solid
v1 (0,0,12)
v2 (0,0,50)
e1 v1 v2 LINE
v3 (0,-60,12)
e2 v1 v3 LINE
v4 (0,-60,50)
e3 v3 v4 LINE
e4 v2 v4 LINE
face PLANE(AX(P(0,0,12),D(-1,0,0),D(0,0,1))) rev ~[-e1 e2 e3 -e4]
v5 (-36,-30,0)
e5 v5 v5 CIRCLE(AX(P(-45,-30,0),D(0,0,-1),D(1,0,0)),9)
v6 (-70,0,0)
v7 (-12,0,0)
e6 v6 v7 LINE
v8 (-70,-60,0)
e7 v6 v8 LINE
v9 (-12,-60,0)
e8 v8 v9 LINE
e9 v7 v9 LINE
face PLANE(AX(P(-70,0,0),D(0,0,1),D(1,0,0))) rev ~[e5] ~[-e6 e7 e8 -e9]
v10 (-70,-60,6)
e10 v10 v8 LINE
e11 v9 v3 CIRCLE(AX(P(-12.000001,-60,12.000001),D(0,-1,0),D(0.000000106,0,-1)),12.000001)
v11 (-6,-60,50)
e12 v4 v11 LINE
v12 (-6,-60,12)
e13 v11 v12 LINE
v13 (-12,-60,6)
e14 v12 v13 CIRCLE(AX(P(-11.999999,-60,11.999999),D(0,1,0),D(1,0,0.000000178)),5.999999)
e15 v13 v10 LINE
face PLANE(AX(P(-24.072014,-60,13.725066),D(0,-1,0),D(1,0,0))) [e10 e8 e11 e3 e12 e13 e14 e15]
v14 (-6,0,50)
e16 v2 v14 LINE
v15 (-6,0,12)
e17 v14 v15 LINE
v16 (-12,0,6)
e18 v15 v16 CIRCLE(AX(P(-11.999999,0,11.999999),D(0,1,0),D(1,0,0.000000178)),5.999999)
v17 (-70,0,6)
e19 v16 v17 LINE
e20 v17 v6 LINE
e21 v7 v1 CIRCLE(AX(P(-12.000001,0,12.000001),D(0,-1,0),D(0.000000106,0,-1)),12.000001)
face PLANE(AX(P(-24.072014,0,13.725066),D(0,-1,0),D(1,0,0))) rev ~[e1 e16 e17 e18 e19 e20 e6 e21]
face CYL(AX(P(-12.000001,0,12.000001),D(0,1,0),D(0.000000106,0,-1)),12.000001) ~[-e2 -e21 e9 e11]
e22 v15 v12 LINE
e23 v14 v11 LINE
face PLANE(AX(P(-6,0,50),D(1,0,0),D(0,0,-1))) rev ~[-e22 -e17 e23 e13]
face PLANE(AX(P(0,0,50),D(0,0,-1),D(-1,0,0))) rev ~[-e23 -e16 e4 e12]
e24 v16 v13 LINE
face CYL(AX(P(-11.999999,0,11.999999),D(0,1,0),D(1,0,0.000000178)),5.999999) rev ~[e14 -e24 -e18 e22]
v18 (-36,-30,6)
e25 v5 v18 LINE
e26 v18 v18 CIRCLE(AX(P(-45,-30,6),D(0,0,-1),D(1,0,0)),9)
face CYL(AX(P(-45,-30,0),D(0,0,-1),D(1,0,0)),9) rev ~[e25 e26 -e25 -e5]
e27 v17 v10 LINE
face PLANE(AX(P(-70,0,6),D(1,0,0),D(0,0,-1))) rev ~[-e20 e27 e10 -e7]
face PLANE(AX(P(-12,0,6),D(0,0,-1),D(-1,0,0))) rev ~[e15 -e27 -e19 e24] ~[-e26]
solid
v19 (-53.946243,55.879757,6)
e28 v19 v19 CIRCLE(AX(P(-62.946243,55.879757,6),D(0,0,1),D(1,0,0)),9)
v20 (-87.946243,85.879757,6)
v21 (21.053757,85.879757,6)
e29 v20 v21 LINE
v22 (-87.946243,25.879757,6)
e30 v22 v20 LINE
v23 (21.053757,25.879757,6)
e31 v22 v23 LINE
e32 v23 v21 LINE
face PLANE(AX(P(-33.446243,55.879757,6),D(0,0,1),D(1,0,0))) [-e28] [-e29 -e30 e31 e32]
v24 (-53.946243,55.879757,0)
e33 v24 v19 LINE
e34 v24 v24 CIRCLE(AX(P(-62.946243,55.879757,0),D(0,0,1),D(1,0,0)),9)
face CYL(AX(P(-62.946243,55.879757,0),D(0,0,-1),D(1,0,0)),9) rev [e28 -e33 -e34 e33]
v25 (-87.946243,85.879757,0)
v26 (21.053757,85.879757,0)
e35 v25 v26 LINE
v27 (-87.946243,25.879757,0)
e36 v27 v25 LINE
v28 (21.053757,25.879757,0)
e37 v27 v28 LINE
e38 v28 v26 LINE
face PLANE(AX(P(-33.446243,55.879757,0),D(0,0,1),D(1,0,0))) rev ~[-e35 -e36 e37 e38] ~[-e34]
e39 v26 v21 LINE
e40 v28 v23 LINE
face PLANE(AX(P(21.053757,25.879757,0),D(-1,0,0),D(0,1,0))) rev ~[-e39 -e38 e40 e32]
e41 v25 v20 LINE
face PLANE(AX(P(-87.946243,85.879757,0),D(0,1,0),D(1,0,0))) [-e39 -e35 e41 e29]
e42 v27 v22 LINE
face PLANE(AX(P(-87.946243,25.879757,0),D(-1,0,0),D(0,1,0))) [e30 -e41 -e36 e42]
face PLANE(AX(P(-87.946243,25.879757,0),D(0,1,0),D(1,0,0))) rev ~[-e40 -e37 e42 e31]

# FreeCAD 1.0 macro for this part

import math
import FreeCAD as App
import Part
import Sketcher
from FreeCAD import Vector

doc = App.newDocument("Part")
params = doc.addObject("Spreadsheet::Sheet", "Params")
for row, (alias, value) in enumerate([
    ("sketch1_radius", "12.000001 mm"),
    ("sketch1_radius2", "5.999999 mm"),
    ("sketch1_width", "58 mm"),
    ("sketch1_height", "38 mm"),
    ("pad1_length", "60 mm"),
    ("sketch2_diameter", "18 mm"),
    ("pocket1_length", "25 mm"),
    ("sketch3_diameter", "18 mm"),
    ("sketch3_width", "109 mm"),
    ("sketch3_height", "60 mm"),
    ("pad2_length", "6 mm"),
], start=1):
    params.set(f"A{row}", alias)
    params.set(f"B{row}", "=" + value)
    params.setAlias(f"B{row}", alias)

body = doc.addObject("PartDesign::Body", "Body")

# Sketch on XZ plane
sketch1 = body.newObject("Sketcher::SketchObject", "Sketch")
sketch1.AttachmentSupport = (doc.getObject("XZ_Plane"), [""])
sketch1.MapMode = "FlatFace"
sketch1.addGeometry(Part.LineSegment(Vector(-70, 6, 0), Vector(-70, 0, 0)), False)
sketch1.addGeometry(Part.LineSegment(Vector(-70, 0, 0), Vector(-12, 0, 0)), False)
sketch1.addGeometry(Part.ArcOfCircle(Part.Circle(Vector(-12, 12, 0), Vector(0, 0, 1), 12), math.radians(-90), math.radians(0)), False)
sketch1.addGeometry(Part.LineSegment(Vector(0, 12, 0), Vector(0, 50, 0)), False)
sketch1.addGeometry(Part.LineSegment(Vector(0, 50, 0), Vector(-6, 50, 0)), False)
sketch1.addGeometry(Part.LineSegment(Vector(-6, 50, 0), Vector(-6, 12, 0)), False)
sketch1.addGeometry(Part.ArcOfCircle(Part.Circle(Vector(-12, 12, 0), Vector(0, 0, 1), 6), math.radians(-90), math.radians(0)), False)
sketch1.addGeometry(Part.LineSegment(Vector(-12, 6, 0), Vector(-70, 6, 0)), False)
sketch1.addConstraint(Sketcher.Constraint("Coincident", 0, 2, 1, 1))
sketch1.addConstraint(Sketcher.Constraint("Tangent", 1, 2, 2, 1))
sketch1.addConstraint(Sketcher.Constraint("Tangent", 2, 2, 3, 1))
sketch1.addConstraint(Sketcher.Constraint("Coincident", 3, 2, 4, 1))
sketch1.addConstraint(Sketcher.Constraint("Coincident", 4, 2, 5, 1))
sketch1.addConstraint(Sketcher.Constraint("Tangent", 5, 2, 6, 2))
sketch1.addConstraint(Sketcher.Constraint("Tangent", 6, 1, 7, 1))
sketch1.addConstraint(Sketcher.Constraint("Coincident", 7, 2, 0, 1))
sketch1.addConstraint(Sketcher.Constraint("Vertical", 0))
sketch1.addConstraint(Sketcher.Constraint("Horizontal", 1))
sketch1.addConstraint(Sketcher.Constraint("Vertical", 3))
sketch1.addConstraint(Sketcher.Constraint("Horizontal", 4))
sketch1.addConstraint(Sketcher.Constraint("Vertical", 5))
sketch1.addConstraint(Sketcher.Constraint("Horizontal", 7))
sketch1.addConstraint(Sketcher.Constraint("Coincident", 6, 3, 2, 3))
sketch1.addConstraint(Sketcher.Constraint("PointOnObject", 0, 2, -1))
sketch1.addConstraint(Sketcher.Constraint("PointOnObject", 2, 2, -2))
sketch1.addConstraint(Sketcher.Constraint("Radius", 2, 12.000001))
sketch1.addConstraint(Sketcher.Constraint("Radius", 6, 5.999999))
sketch1.addConstraint(Sketcher.Constraint("DistanceX", 1, 1, 1, 2, 58.0))
sketch1.addConstraint(Sketcher.Constraint("DistanceY", 3, 1, 3, 2, 38.0))
sketch1.setExpression("Constraints[17]", "Params.sketch1_radius")
sketch1.setExpression("Constraints[18]", "Params.sketch1_radius2")
sketch1.setExpression("Constraints[19]", "Params.sketch1_width")
sketch1.setExpression("Constraints[20]", "Params.sketch1_height")
pad1 = body.newObject("PartDesign::Pad", "Pad")
pad1.Profile = sketch1
pad1.setExpression("Length", "Params.pad1_length")

# Sketch on XY plane
sketch2 = body.newObject("Sketcher::SketchObject", "Sketch001")
sketch2.AttachmentSupport = (doc.getObject("XY_Plane"), [""])
sketch2.MapMode = "FlatFace"
sketch2.addGeometry(Part.Circle(Vector(-45, -30, 0), Vector(0, 0, 1), 9), False)
sketch2.addConstraint(Sketcher.Constraint("Diameter", 0, 18.0))
sketch2.addConstraint(Sketcher.Constraint("DistanceX", 0, 3, -1, 1, 45.0))
sketch2.addConstraint(Sketcher.Constraint("DistanceY", 0, 3, -1, 1, 30.0))
sketch2.setExpression("Constraints[0]", "Params.sketch2_diameter")
pocket1 = body.newObject("PartDesign::Pocket", "Pocket")
pocket1.Profile = sketch2
pocket1.setExpression("Length", "Params.pocket1_length")
pocket1.Reversed = True
body2 = doc.addObject("PartDesign::Body", "Body001")

# Sketch on XY plane
sketch3 = body2.newObject("Sketcher::SketchObject", "Sketch002")
sketch3.AttachmentSupport = (doc.getObject("XY_Plane001"), [""])
sketch3.MapMode = "FlatFace"
sketch3.addGeometry(Part.LineSegment(Vector(-88, 86, 0), Vector(-88, 26, 0)), False)
sketch3.addGeometry(Part.LineSegment(Vector(-88, 26, 0), Vector(21, 26, 0)), False)
sketch3.addGeometry(Part.LineSegment(Vector(21, 26, 0), Vector(21, 86, 0)), False)
sketch3.addGeometry(Part.LineSegment(Vector(21, 86, 0), Vector(-88, 86, 0)), False)
sketch3.addGeometry(Part.Circle(Vector(-63, 56, 0), Vector(0, 0, 1), 9), False)
sketch3.addConstraint(Sketcher.Constraint("Coincident", 0, 2, 1, 1))
sketch3.addConstraint(Sketcher.Constraint("Coincident", 1, 2, 2, 1))
sketch3.addConstraint(Sketcher.Constraint("Coincident", 2, 2, 3, 1))
sketch3.addConstraint(Sketcher.Constraint("Coincident", 3, 2, 0, 1))
sketch3.addConstraint(Sketcher.Constraint("Vertical", 0))
sketch3.addConstraint(Sketcher.Constraint("Horizontal", 1))
sketch3.addConstraint(Sketcher.Constraint("Vertical", 2))
sketch3.addConstraint(Sketcher.Constraint("Horizontal", 3))
sketch3.addConstraint(Sketcher.Constraint("Diameter", 4, 18.0))
sketch3.addConstraint(Sketcher.Constraint("DistanceX", 1, 1, 1, 2, 109.0))
sketch3.addConstraint(Sketcher.Constraint("DistanceY", 0, 2, 0, 1, 60.0))
sketch3.addConstraint(Sketcher.Constraint("DistanceX", 0, 2, 4, 3, 25.0))
sketch3.addConstraint(Sketcher.Constraint("DistanceY", 0, 2, 4, 3, 30.0))
sketch3.addConstraint(Sketcher.Constraint("DistanceX", 4, 3, -1, 1, 62.946243))
sketch3.addConstraint(Sketcher.Constraint("DistanceY", -1, 1, 4, 3, 55.879757))
sketch3.setExpression("Constraints[8]", "Params.sketch3_diameter")
sketch3.setExpression("Constraints[9]", "Params.sketch3_width")
sketch3.setExpression("Constraints[10]", "Params.sketch3_height")
pad2 = body2.newObject("PartDesign::Pad", "Pad001")
pad2.Profile = sketch3
pad2.setExpression("Length", "Params.pad2_length")

doc.recompute()
